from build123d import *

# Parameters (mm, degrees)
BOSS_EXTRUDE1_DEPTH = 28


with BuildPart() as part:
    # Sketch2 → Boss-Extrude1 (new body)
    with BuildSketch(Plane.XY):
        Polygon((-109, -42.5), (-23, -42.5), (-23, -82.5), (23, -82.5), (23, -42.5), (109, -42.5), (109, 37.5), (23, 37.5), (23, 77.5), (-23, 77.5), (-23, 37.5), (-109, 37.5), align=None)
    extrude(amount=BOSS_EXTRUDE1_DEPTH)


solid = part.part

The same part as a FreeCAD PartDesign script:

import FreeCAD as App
import Part
import Sketcher

V = App.Vector
Q = App.Units.Quantity

doc = App.newDocument("Part")
body = doc.addObject("PartDesign::Body", "Body")

# Sketch on XY plane
sketch1 = body.newObject("Sketcher::SketchObject", "Sketch")
sketch1.AttachmentSupport = (doc.getObject("XY_Plane"), [""])
sketch1.MapMode = "FlatFace"
sketch1.addGeometry([
    Part.LineSegment(V(-109, -42, 0), V(-23, -42, 0)),  # 0
    Part.LineSegment(V(-23, -42, 0), V(-23, -82, 0)),  # 1
    Part.LineSegment(V(-23, -82, 0), V(23, -82, 0)),  # 2
    Part.LineSegment(V(23, -82, 0), V(23, -42, 0)),  # 3
    Part.LineSegment(V(23, -42, 0), V(109, -42, 0)),  # 4
    Part.LineSegment(V(109, -42, 0), V(109, 38, 0)),  # 5
    Part.LineSegment(V(109, 38, 0), V(23, 38, 0)),  # 6
    Part.LineSegment(V(23, 38, 0), V(23, 78, 0)),  # 7
    Part.LineSegment(V(23, 78, 0), V(-23, 78, 0)),  # 8
    Part.LineSegment(V(-23, 78, 0), V(-23, 38, 0)),  # 9
    Part.LineSegment(V(-23, 38, 0), V(-109, 38, 0)),  # 10
    Part.LineSegment(V(-109, 38, 0), V(-109, -42, 0)),  # 11
], False)
sketch1.addConstraint([
    Sketcher.Constraint("Coincident", 0, 2, 1, 1),
    Sketcher.Constraint("Coincident", 1, 2, 2, 1),
    Sketcher.Constraint("Coincident", 2, 2, 3, 1),
    Sketcher.Constraint("Coincident", 3, 2, 4, 1),
    Sketcher.Constraint("Coincident", 4, 2, 5, 1),
    Sketcher.Constraint("Coincident", 5, 2, 6, 1),
    Sketcher.Constraint("Coincident", 6, 2, 7, 1),
    Sketcher.Constraint("Coincident", 7, 2, 8, 1),
    Sketcher.Constraint("Coincident", 8, 2, 9, 1),
    Sketcher.Constraint("Coincident", 9, 2, 10, 1),
    Sketcher.Constraint("Coincident", 10, 2, 11, 1),
    Sketcher.Constraint("Coincident", 11, 2, 0, 1),
    Sketcher.Constraint("Horizontal", 0),
    Sketcher.Constraint("Vertical", 1),
    Sketcher.Constraint("Horizontal", 2),
    Sketcher.Constraint("Vertical", 3),
    Sketcher.Constraint("Horizontal", 4),
    Sketcher.Constraint("Vertical", 5),
    Sketcher.Constraint("Horizontal", 6),
    Sketcher.Constraint("Vertical", 7),
    Sketcher.Constraint("Horizontal", 8),
    Sketcher.Constraint("Vertical", 9),
    Sketcher.Constraint("Horizontal", 10),
    Sketcher.Constraint("Vertical", 11),
    Sketcher.Constraint("Symmetric", 0, 2, 3, 2, -2),
    Sketcher.Constraint("Symmetric", 6, 2, 9, 2, -2),
    Sketcher.Constraint("Vertical", 3, 2, 6, 2),
    Sketcher.Constraint("Equal", 0, 4),
    Sketcher.Constraint("Equal", 3, 7),
    Sketcher.Constraint("DistanceX", 0, 1, 0, 2, Q("86 mm")),
    Sketcher.Constraint("DistanceX", 2, 1, 2, 2, Q("46 mm")),
    Sketcher.Constraint("DistanceY", 1, 2, 1, 1, Q("40 mm")),
    Sketcher.Constraint("DistanceY", 5, 1, 5, 2, Q("80 mm")),
    Sketcher.Constraint("DistanceY", 0, 2, -1, 1, Q("42.5 mm")),
])
pad1 = body.newObject("PartDesign::Pad", "Pad")
pad1.Profile = sketch1
pad1.Length = 28

doc.recompute()
